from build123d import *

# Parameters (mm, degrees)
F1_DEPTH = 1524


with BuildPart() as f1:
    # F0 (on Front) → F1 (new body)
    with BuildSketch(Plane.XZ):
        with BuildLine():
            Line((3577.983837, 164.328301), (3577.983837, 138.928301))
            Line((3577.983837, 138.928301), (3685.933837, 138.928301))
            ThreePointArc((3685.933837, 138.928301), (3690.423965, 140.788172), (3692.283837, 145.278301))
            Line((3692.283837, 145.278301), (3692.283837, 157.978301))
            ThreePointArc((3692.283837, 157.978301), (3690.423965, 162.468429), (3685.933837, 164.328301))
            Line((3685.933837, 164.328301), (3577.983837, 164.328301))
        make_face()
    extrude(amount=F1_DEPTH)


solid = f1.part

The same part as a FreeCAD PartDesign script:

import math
import FreeCAD as App
import Part
import Sketcher
from FreeCAD import Vector
Q = App.Units.Quantity

doc = App.newDocument("Part")
body = doc.addObject("PartDesign::Body", "Body")

# Sketch on XZ plane
sketch1 = body.newObject("Sketcher::SketchObject", "Sketch")
sketch1.AttachmentSupport = (doc.getObject("XZ_Plane"), [""])
sketch1.MapMode = "FlatFace"
sketch1.addGeometry([
    Part.LineSegment(Vector(3578, 164, 0), Vector(3578, 139, 0)),  # 0
    Part.LineSegment(Vector(3578, 139, 0), Vector(3686, 139, 0)),  # 1
    Part.ArcOfCircle(Part.Circle(Vector(3686, 145, 0), Vector(0, 0, 1), 6), math.radians(-90), math.radians(0)),  # 2
    Part.LineSegment(Vector(3692, 145, 0), Vector(3692, 158, 0)),  # 3
    Part.ArcOfCircle(Part.Circle(Vector(3686, 158, 0), Vector(0, 0, 1), 6), math.radians(0), math.radians(90)),  # 4
    Part.LineSegment(Vector(3686, 164, 0), Vector(3578, 164, 0)),  # 5
], False)
sketch1.addConstraint([
    Sketcher.Constraint("Coincident", 0, 2, 1, 1),
    Sketcher.Constraint("Tangent", 1, 2, 2, 1),
    Sketcher.Constraint("Tangent", 2, 2, 3, 1),
    Sketcher.Constraint("Tangent", 3, 2, 4, 1),
    Sketcher.Constraint("Tangent", 4, 2, 5, 1),
    Sketcher.Constraint("Coincident", 5, 2, 0, 1),
    Sketcher.Constraint("Vertical", 0),
    Sketcher.Constraint("Horizontal", 1),
    Sketcher.Constraint("Vertical", 3),
    Sketcher.Constraint("Horizontal", 5),
    Sketcher.Constraint("Equal", 2, 4),
    Sketcher.Constraint("DistanceY", 0, 2, 0, 1, Q("1 in")),
    Sketcher.Constraint("Radius", 2, Q("0.2499999 in")),
    Sketcher.Constraint("DistanceX", 1, 1, 1, 2, Q("4.25 in")),
    Sketcher.Constraint("DistanceY", -1, 1, 2, 3, Q("145.2783 mm")),
    Sketcher.Constraint("DistanceX", -1, 1, 2, 3, Q("3685.933839 mm")),
])
pad1 = body.newObject("PartDesign::Pad", "Pad")
pad1.Profile = sketch1
pad1.Length = Q("60 in")

doc.recompute()
